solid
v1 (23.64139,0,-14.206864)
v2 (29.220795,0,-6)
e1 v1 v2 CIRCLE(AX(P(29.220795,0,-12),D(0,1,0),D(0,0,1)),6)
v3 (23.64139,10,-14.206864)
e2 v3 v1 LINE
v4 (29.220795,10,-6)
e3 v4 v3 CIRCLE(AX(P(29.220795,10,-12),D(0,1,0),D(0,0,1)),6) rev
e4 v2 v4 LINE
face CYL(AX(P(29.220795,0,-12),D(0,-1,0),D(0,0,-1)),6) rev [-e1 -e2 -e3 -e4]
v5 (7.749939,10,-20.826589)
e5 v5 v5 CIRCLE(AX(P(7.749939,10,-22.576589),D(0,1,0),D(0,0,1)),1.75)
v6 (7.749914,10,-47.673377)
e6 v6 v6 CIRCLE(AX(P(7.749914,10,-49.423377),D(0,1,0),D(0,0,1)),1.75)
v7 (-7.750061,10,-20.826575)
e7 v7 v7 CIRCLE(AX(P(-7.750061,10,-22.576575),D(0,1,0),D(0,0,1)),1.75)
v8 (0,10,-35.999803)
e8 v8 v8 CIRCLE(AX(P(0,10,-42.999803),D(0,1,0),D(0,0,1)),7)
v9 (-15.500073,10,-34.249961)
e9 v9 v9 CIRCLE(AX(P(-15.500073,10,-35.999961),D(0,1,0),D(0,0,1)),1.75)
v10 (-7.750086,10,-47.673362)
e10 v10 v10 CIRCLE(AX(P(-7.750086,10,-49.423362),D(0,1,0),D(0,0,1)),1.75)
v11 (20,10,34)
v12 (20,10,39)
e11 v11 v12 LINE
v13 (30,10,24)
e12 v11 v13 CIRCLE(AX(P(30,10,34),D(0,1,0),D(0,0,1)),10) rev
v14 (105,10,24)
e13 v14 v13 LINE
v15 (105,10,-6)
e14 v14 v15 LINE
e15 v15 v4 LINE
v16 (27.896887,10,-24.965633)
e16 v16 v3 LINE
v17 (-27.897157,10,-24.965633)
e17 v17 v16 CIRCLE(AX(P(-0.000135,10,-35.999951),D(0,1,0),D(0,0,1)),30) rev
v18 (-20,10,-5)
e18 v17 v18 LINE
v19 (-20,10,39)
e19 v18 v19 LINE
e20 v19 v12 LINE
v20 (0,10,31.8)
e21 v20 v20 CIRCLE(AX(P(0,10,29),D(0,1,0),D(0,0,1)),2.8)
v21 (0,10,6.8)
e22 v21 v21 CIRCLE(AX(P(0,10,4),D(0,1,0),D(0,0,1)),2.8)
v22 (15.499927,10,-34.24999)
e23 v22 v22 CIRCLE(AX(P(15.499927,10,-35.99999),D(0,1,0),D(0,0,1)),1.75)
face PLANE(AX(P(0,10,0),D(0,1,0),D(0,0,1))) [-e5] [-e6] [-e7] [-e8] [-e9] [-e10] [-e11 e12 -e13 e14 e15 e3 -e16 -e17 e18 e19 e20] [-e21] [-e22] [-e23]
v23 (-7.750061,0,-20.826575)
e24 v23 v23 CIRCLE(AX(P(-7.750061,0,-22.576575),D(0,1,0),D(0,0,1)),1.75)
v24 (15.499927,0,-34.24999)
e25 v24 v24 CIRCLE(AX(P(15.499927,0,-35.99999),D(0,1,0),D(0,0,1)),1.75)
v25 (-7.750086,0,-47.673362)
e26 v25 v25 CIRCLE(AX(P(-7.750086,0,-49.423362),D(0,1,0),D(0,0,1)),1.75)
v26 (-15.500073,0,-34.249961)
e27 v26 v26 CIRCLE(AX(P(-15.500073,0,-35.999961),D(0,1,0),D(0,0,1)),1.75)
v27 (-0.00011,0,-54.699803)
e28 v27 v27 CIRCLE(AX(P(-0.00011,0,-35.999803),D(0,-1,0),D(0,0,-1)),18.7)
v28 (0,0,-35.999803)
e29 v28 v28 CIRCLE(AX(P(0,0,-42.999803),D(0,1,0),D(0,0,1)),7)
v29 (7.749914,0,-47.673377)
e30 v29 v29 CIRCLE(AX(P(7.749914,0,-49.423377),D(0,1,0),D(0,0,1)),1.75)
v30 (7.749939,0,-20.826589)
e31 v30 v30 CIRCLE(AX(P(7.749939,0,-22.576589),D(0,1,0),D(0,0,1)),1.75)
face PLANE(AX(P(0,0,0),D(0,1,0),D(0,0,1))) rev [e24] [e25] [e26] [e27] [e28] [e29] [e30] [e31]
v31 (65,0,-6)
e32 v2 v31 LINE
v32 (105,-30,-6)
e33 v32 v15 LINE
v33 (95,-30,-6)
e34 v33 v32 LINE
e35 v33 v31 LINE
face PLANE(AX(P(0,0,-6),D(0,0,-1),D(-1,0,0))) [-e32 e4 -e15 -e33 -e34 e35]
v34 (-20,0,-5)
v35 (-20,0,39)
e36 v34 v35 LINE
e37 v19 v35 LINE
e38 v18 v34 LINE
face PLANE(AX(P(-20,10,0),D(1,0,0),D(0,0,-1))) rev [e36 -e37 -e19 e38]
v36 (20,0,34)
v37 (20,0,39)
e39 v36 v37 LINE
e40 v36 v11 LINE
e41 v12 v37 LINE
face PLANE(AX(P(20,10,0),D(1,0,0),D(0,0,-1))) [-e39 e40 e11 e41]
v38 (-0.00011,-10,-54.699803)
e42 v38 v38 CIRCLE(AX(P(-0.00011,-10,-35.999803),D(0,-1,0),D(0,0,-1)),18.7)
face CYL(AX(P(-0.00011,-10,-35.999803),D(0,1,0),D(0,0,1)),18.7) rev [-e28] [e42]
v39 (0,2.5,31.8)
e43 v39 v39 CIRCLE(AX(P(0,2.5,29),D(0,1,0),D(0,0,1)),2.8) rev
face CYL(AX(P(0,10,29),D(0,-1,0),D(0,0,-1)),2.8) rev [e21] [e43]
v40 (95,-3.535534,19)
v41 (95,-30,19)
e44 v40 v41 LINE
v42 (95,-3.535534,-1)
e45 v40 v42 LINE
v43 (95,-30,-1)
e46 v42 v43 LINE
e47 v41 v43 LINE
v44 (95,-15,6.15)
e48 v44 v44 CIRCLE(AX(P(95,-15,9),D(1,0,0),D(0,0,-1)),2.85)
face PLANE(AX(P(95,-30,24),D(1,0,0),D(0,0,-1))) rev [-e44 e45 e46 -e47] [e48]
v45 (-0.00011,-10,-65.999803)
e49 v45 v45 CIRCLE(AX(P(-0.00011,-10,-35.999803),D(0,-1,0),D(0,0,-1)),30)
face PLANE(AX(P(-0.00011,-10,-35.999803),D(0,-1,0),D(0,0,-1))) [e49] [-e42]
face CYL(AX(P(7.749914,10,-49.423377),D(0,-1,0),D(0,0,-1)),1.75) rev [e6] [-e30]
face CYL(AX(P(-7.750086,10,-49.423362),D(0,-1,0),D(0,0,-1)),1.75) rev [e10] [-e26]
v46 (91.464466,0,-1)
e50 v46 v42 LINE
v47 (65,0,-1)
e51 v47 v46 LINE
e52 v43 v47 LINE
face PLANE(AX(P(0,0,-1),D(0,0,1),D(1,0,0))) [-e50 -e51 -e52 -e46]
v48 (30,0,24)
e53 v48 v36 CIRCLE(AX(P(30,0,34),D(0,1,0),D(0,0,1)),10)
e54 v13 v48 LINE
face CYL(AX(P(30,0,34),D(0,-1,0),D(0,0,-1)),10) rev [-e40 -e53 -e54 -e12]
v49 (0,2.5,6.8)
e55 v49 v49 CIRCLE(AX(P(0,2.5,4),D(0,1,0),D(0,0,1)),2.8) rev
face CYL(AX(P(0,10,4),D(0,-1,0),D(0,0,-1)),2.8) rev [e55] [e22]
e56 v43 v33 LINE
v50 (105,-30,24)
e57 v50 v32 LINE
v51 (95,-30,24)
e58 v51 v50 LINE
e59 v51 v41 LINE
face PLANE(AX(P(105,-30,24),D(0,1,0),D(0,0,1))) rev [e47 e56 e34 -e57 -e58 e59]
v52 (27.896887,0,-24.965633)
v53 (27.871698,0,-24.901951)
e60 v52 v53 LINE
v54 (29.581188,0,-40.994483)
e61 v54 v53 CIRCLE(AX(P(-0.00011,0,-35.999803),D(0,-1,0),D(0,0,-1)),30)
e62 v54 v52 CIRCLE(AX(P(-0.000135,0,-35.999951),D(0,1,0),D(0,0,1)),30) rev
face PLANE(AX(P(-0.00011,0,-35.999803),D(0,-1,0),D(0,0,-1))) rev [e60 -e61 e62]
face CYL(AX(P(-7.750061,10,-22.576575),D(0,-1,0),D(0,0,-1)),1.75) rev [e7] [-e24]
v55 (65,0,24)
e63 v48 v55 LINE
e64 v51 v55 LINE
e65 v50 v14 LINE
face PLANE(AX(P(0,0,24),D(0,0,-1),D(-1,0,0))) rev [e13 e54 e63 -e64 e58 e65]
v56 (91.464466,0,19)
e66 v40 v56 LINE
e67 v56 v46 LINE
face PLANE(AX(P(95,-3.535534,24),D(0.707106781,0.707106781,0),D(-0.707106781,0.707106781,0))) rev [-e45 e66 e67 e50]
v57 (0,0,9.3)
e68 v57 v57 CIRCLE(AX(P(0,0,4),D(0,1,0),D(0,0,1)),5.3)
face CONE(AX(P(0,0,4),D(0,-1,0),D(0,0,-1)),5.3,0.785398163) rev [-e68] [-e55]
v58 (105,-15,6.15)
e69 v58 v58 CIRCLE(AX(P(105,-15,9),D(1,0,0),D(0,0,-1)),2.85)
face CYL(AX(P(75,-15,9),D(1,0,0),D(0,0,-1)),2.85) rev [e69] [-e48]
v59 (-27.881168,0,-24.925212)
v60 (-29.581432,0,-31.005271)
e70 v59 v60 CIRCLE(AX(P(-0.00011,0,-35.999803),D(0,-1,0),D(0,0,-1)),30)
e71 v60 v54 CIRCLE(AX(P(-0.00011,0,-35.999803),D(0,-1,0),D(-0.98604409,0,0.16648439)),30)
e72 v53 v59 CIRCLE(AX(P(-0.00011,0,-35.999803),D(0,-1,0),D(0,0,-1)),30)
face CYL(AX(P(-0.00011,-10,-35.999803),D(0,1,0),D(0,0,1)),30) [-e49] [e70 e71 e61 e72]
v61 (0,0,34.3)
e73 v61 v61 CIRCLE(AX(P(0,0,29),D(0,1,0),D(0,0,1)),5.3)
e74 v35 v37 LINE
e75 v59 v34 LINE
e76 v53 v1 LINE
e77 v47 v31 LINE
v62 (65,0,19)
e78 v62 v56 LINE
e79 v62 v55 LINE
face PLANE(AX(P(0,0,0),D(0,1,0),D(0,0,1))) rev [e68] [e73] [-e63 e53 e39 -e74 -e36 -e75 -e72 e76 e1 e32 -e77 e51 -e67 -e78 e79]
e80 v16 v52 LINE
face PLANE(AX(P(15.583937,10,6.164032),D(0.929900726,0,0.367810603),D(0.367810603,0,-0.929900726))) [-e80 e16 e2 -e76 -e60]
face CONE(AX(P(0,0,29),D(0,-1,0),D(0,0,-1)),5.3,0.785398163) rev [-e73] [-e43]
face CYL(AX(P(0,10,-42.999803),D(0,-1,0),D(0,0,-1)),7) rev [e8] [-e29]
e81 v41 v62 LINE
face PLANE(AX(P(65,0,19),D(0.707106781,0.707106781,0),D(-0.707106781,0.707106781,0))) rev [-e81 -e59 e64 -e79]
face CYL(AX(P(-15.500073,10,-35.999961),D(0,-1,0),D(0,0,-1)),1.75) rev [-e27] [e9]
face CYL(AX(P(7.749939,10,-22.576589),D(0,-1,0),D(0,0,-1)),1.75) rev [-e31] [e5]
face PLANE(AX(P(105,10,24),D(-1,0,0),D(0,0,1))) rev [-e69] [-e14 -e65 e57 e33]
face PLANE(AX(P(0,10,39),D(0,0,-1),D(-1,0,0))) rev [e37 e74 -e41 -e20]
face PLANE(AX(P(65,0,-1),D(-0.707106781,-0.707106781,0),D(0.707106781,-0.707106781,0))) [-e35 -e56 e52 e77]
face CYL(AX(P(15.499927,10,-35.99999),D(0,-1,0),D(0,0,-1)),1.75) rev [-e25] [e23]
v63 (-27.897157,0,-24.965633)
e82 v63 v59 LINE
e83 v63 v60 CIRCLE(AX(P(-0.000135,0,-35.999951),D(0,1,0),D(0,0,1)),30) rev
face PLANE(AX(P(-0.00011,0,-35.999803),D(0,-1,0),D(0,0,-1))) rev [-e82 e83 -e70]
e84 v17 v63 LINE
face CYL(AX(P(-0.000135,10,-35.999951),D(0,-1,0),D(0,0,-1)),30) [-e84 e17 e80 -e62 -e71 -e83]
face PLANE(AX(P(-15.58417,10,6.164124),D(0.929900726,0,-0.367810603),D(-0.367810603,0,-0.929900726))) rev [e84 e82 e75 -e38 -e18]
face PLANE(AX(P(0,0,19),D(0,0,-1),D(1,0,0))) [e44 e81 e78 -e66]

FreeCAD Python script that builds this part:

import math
import FreeCAD as App
import Part
import Sketcher
Q = App.Units.Quantity


def edges_at(feature, points):
    """Names of the edges that pass closest to the given points."""
    edges = feature.Shape.Edges
    near = lambda p: min(range(len(edges)), key=lambda i: edges[i].distToShape(Part.Vertex(*p))[0])
    return sorted({f"Edge{near(p) + 1}" for p in points})

doc = App.newDocument("Part")
params = doc.addObject("Spreadsheet::Sheet", "Params")
for row, (alias, value) in enumerate([
    ("sketch1_diameter", "14 mm"),
    ("sketch1_radius", "30 mm"),
    ("sketch1_diameter2", "5.6 mm"),
    ("sketch1_diameter3", "3.5 mm"),
    ("sketch1_width", "40 mm"),
    ("pad1_length", "10 mm"),
    ("sketch2_diameter", "60 mm"),
    ("sketch2_diameter2", "37.4 mm"),
    ("pad2_length", "10 mm"),
    ("sketch3_width", "85 mm"),
    ("sketch3_width2", "10 mm"),
    ("sketch3_height", "40 mm"),
    ("sketch3_length", "5 mm"),
    ("pad3_length", "30 mm"),
    ("fillet_radius", "10 mm"),
    ("fillet2_radius", "6 mm"),
    ("sketch4_diameter", "5.7 mm"),
    ("pocket1_length", "30 mm"),
    ("sketch5_width", "30 mm"),
    ("pad4_length", "5 mm"),
    ("chamfer_size", "2.5 mm"),
    ("chamfer2_size", "2.5 mm"),
], start=1):
    params.set(f"A{row}", alias)
    params.set(f"B{row}", "=" + value)
    params.setAlias(f"B{row}", alias)

body = doc.addObject("PartDesign::Body", "Body")

sketch1 = doc.addObject("Sketcher::SketchObject", "Sketch")
body.addObject(sketch1)
sketch1.AttachmentSupport = (doc.XZ_Plane, [""])
sketch1.MapMode = "FlatFace"
sketch1.addGeometry([
    Part.LineSegment(App.Vector(-20, 39, 0), App.Vector(20, 39, 0)),
    Part.LineSegment(App.Vector(20, 39, 0), App.Vector(20, -5, 0)),
    Part.LineSegment(App.Vector(20, -5, 0), App.Vector(27.9, -25, 0)),
    Part.ArcOfCircle(Part.Circle(App.Vector(0, -36, 0), App.Vector(0, 0, 1), 30), math.radians(158), math.radians(382)),
    Part.LineSegment(App.Vector(-27.9, -25, 0), App.Vector(-20, -5, 0)),
    Part.LineSegment(App.Vector(-20, -5, 0), App.Vector(-20, 39, 0)),
    Part.Circle(App.Vector(0, 29, 0), App.Vector(0, 0, 1), 2.8),
    Part.Circle(App.Vector(0, 4, 0), App.Vector(0, 0, 1), 2.8),
    Part.Circle(App.Vector(-7.8, -22.6, 0), App.Vector(0, 0, 1), 1.8),
    Part.Circle(App.Vector(-15.5, -36, 0), App.Vector(0, 0, 1), 1.8),
    Part.Circle(App.Vector(-7.8, -49.4, 0), App.Vector(0, 0, 1), 1.8),
    Part.Circle(App.Vector(7.7, -22.6, 0), App.Vector(0, 0, 1), 1.8),
    Part.Circle(App.Vector(0, -43, 0), App.Vector(0, 0, 1), 7),
    Part.Circle(App.Vector(7.7, -49.4, 0), App.Vector(0, 0, 1), 1.8),
    Part.Circle(App.Vector(15.5, -36, 0), App.Vector(0, 0, 1), 1.8),
], False)
sketch1.addConstraint([
    Sketcher.Constraint("Coincident", 0, 2, 1, 1),
    Sketcher.Constraint("Coincident", 1, 2, 2, 1),
    Sketcher.Constraint("Tangent", 2, 2, 3, 2),
    Sketcher.Constraint("Tangent", 3, 1, 4, 1),
    Sketcher.Constraint("Coincident", 4, 2, 5, 1),
    Sketcher.Constraint("Coincident", 5, 2, 0, 1),
    Sketcher.Constraint("Horizontal", 0),
    Sketcher.Constraint("Vertical", 1),
    Sketcher.Constraint("Vertical", 5),
    Sketcher.Constraint("Equal", 6, 7),
    Sketcher.Constraint("Equal", 8, 9),
    Sketcher.Constraint("Equal", 9, 10),
    Sketcher.Constraint("Equal", 10, 11),
    Sketcher.Constraint("Equal", 11, 13),
    Sketcher.Constraint("Equal", 13, 14),
    Sketcher.Constraint("PointOnObject", 6, 3, -2),
    Sketcher.Constraint("PointOnObject", 7, 3, -2),
    Sketcher.Constraint("PointOnObject", 12, 3, -2),
    Sketcher.Constraint("Horizontal", 2, 2, 3, 1),
    Sketcher.Constraint("Diameter", 12, Q("14 mm")),
    Sketcher.Constraint("Radius", 3, Q("30 mm")),
    Sketcher.Constraint("Diameter", 6, Q("5.6 mm")),
    Sketcher.Constraint("Diameter", 8, Q("3.5 mm")),
    Sketcher.Constraint("DistanceX", 0, 1, 0, 2, Q("40 mm")),
    Sketcher.Constraint("DistanceY", 5, 1, 5, 2, Q("44 mm")),
    Sketcher.Constraint("DistanceY", -1, 1, 6, 3, Q("29 mm")),
    Sketcher.Constraint("DistanceY", -1, 1, 7, 3, Q("4 mm")),
    Sketcher.Constraint("DistanceX", -1, 1, 0, 2, Q("20 mm")),
    Sketcher.Constraint("DistanceY", -1, 1, 0, 2, Q("39 mm")),
    Sketcher.Constraint("DistanceX", 8, 3, 11, 3, Q("15.5 mm")),
    Sketcher.Constraint("DistanceX", 10, 3, 13, 3, Q("15.5 mm")),
    Sketcher.Constraint("DistanceY", 1, 2, 1, 1, Q("44.000681 mm")),
    Sketcher.Constraint("DistanceY", 10, 3, 9, 3, Q("13.423401 mm")),
    Sketcher.Constraint("DistanceY", 14, 3, 11, 3, Q("13.423401 mm")),
    Sketcher.Constraint("Distance", 2, Q("21.469982 mm")),
    Sketcher.Constraint("DistanceX", 8, 3, -1, 1, Q("7.750061 mm")),
    Sketcher.Constraint("DistanceY", 9, 3, -1, 1, Q("35.999961 mm")),
    Sketcher.Constraint("DistanceY", 11, 3, -1, 1, Q("22.576589 mm")),
    Sketcher.Constraint("DistanceX", 9, 3, 3, 3, Q("15.499938 mm")),
    Sketcher.Constraint("DistanceX", 10, 3, 3, 3, Q("7.749951 mm")),
    Sketcher.Constraint("DistanceY", 12, 3, 3, 3, Q("6.999852 mm")),
    Sketcher.Constraint("DistanceY", 12, 3, 8, 3, Q("20.423228 mm")),
    Sketcher.Constraint("DistanceX", 3, 3, 14, 3, Q("15.500062 mm")),
    Sketcher.Constraint("DistanceY", 13, 3, -1, 1, Q("49.423377 mm")),
])
sketch1.setExpression("Constraints[19]", "Params.sketch1_diameter")
sketch1.setExpression("Constraints[20]", "Params.sketch1_radius")
sketch1.setExpression("Constraints[21]", "Params.sketch1_diameter2")
sketch1.setExpression("Constraints[22]", "Params.sketch1_diameter3")
sketch1.setExpression("Constraints[23]", "Params.sketch1_width")
pad1 = doc.addObject("PartDesign::Pad", "Pad")
body.addObject(pad1)
pad1.Profile = sketch1
pad1.setExpression("Length", "Params.pad1_length")
pad1.Reversed = True

sketch2 = doc.addObject("Sketcher::SketchObject", "Sketch001")
body.addObject(sketch2)
sketch2.AttachmentSupport = (doc.XZ_Plane, [""])
sketch2.MapMode = "FlatFace"
sketch2.addGeometry([
    Part.Circle(App.Vector(0, -36, 0), App.Vector(0, 0, 1), 30),
    Part.Circle(App.Vector(0, -36, 0), App.Vector(0, 0, 1), 19),
], False)
sketch2.addConstraint([
    Sketcher.Constraint("Coincident", 1, 3, 0, 3),
    Sketcher.Constraint("Diameter", 0, Q("60 mm")),
    Sketcher.Constraint("Diameter", 1, Q("37.4 mm")),
    Sketcher.Constraint("DistanceX", 0, 3, -1, 1, Q("0.00011 mm")),
    Sketcher.Constraint("DistanceY", 0, 3, -1, 1, Q("35.999803 mm")),
])
sketch2.setExpression("Constraints[1]", "Params.sketch2_diameter")
sketch2.setExpression("Constraints[2]", "Params.sketch2_diameter2")
pad2 = doc.addObject("PartDesign::Pad", "Pad001")
body.addObject(pad2)
pad2.Profile = sketch2
pad2.setExpression("Length", "Params.pad2_length")

sketch3 = doc.addObject("Sketcher::SketchObject", "Sketch002")
body.addObject(sketch3)
sketch3.AttachmentSupport = (doc.XY_Plane, [""])
sketch3.MapMode = "FlatFace"
sketch3.AttachmentOffset = App.Placement(App.Vector(0, 0, 9), App.Rotation())
sketch3.addGeometry([
    Part.LineSegment(App.Vector(105, 10, 0), App.Vector(20, 10, 0)),
    Part.LineSegment(App.Vector(20, 10, 0), App.Vector(20, 0, 0)),
    Part.LineSegment(App.Vector(20, 0, 0), App.Vector(91, 0, 0)),
    Part.LineSegment(App.Vector(91, 0, 0), App.Vector(95, -4, 0)),
    Part.LineSegment(App.Vector(95, -4, 0), App.Vector(95, -30, 0)),
    Part.LineSegment(App.Vector(95, -30, 0), App.Vector(105, -30, 0)),
    Part.LineSegment(App.Vector(105, -30, 0), App.Vector(105, 10, 0)),
], False)
sketch3.addConstraint([
    Sketcher.Constraint("Coincident", 0, 2, 1, 1),
    Sketcher.Constraint("Coincident", 1, 2, 2, 1),
    Sketcher.Constraint("Coincident", 2, 2, 3, 1),
    Sketcher.Constraint("Coincident", 3, 2, 4, 1),
    Sketcher.Constraint("Coincident", 4, 2, 5, 1),
    Sketcher.Constraint("Coincident", 5, 2, 6, 1),
    Sketcher.Constraint("Coincident", 6, 2, 0, 1),
    Sketcher.Constraint("Horizontal", 0),
    Sketcher.Constraint("Vertical", 1),
    Sketcher.Constraint("Horizontal", 2),
    Sketcher.Constraint("Vertical", 4),
    Sketcher.Constraint("Horizontal", 5),
    Sketcher.Constraint("Vertical", 6),
    Sketcher.Constraint("PointOnObject", 1, 2, -1),
    Sketcher.Constraint("Equal", 5, 1),
    Sketcher.Constraint("DistanceX", 0, 2, 0, 1, Q("85 mm")),
    Sketcher.Constraint("DistanceX", 5, 1, 5, 2, Q("10 mm")),
    Sketcher.Constraint("DistanceY", 6, 1, 6, 2, Q("40 mm")),
    Sketcher.Constraint("Angle", 3, Q("-45 deg")),
    Sketcher.Constraint("Distance", 3, Q("5 mm")),
    Sketcher.Constraint("DistanceX", -1, 1, 0, 2, Q("20 mm")),
])
sketch3.setExpression("Constraints[15]", "Params.sketch3_width")
sketch3.setExpression("Constraints[16]", "Params.sketch3_width2")
sketch3.setExpression("Constraints[17]", "Params.sketch3_height")
sketch3.setExpression("Constraints[19]", "Params.sketch3_length")
pad3 = doc.addObject("PartDesign::Pad", "Pad002")
body.addObject(pad3)
pad3.Profile = sketch3
pad3.setExpression("Length", "Params.pad3_length")
pad3.Midplane = True
doc.recompute()

fillet = doc.addObject("PartDesign::Fillet", "Fillet")
body.addObject(fillet)
fillet.Base = (pad3, edges_at(pad3, [(20, 5, 24)]))
fillet.setExpression("Radius", "Params.fillet_radius")
doc.recompute()

fillet2 = doc.addObject("PartDesign::Fillet", "Fillet001")
body.addObject(fillet2)
fillet2.Base = (fillet, edges_at(fillet, [(20.395, 5, -6)]))
fillet2.setExpression("Radius", "Params.fillet2_radius")

sketch4 = doc.addObject("Sketcher::SketchObject", "Sketch003")
body.addObject(sketch4)
sketch4.AttachmentSupport = (doc.YZ_Plane, [""])
sketch4.MapMode = "FlatFace"
sketch4.AttachmentOffset = App.Placement(App.Vector(0, 0, 105), App.Rotation())
sketch4.addGeometry(Part.Circle(App.Vector(-15, 9, 0), App.Vector(0, 0, 1), 2.9), False)
sketch4.addConstraint([
    Sketcher.Constraint("Diameter", 0, Q("5.7 mm")),
    Sketcher.Constraint("DistanceX", 0, 3, -1, 1, Q("15 mm")),
    Sketcher.Constraint("DistanceY", -1, 1, 0, 3, Q("9 mm")),
])
sketch4.setExpression("Constraints[0]", "Params.sketch4_diameter")
pocket1 = doc.addObject("PartDesign::Pocket", "Pocket")
body.addObject(pocket1)
pocket1.Profile = sketch4
pocket1.setExpression("Length", "Params.pocket1_length")

sketch5 = doc.addObject("Sketcher::SketchObject", "Sketch004")
body.addObject(sketch5)
sketch5.AttachmentSupport = (doc.XY_Plane, [""])
sketch5.MapMode = "FlatFace"
sketch5.AttachmentOffset = App.Placement(App.Vector(0, 0, -6), App.Rotation())
sketch5.addGeometry([
    Part.LineSegment(App.Vector(95, 0, 0), App.Vector(95, -30, 0)),
    Part.LineSegment(App.Vector(95, -30, 0), App.Vector(65, 0, 0)),
    Part.LineSegment(App.Vector(65, 0, 0), App.Vector(95, 0, 0)),
], False)
sketch5.addConstraint([
    Sketcher.Constraint("Coincident", 0, 2, 1, 1),
    Sketcher.Constraint("Coincident", 1, 2, 2, 1),
    Sketcher.Constraint("Coincident", 2, 2, 0, 1),
    Sketcher.Constraint("Vertical", 0),
    Sketcher.Constraint("Horizontal", 2),
    Sketcher.Constraint("PointOnObject", 1, 2, -1),
    Sketcher.Constraint("Equal", 2, 0),
    Sketcher.Constraint("DistanceX", 2, 1, 2, 2, Q("30 mm")),
    Sketcher.Constraint("DistanceX", -1, 1, 0, 2, Q("95 mm")),
])
sketch5.setExpression("Constraints[7]", "Params.sketch5_width")
pad4 = doc.addObject("PartDesign::Pad", "Pad003")
body.addObject(pad4)
pad4.Profile = sketch5
pad4.setExpression("Length", "Params.pad4_length")
doc.recompute()

datumplane = doc.addObject("PartDesign::Plane", "DatumPlane")
body.addObject(datumplane)
datumplane.AttachmentSupport = (doc.XY_Plane, [""])
datumplane.MapMode = "FlatFace"
datumplane.AttachmentOffset = App.Placement(App.Vector(0, 0, 9), App.Rotation())
mirrored = doc.addObject("PartDesign::Mirrored", "Mirrored")
body.addObject(mirrored)
mirrored.Originals = [pad4]
mirrored.MirrorPlane = (datumplane, [""])
body.Tip = mirrored
doc.recompute()

chamfer = doc.addObject("PartDesign::Chamfer", "Chamfer")
body.addObject(chamfer)
chamfer.Base = (mirrored, edges_at(mirrored, [(0, 0, 1.2)]))
chamfer.setExpression("Size", "Params.chamfer_size")
doc.recompute()

chamfer2 = doc.addObject("PartDesign::Chamfer", "Chamfer001")
body.addObject(chamfer2)
chamfer2.Base = (chamfer, edges_at(chamfer, [(0, 0, 26.2)]))
chamfer2.setExpression("Size", "Params.chamfer2_size")

doc.recompute()
